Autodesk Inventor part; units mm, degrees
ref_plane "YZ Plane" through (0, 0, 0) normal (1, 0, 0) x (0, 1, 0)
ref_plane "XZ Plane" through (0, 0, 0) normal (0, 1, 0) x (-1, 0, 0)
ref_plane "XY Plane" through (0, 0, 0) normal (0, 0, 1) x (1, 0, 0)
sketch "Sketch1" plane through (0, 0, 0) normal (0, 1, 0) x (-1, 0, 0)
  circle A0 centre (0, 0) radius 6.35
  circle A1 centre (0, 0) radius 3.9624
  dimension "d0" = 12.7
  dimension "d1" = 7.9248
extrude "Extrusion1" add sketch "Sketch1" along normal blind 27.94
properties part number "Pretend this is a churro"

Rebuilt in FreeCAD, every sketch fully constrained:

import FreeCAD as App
import Part
import Sketcher
from FreeCAD import Vector
Q = App.Units.Quantity

doc = App.newDocument("Part")
body = doc.addObject("PartDesign::Body", "Body")

# Sketch on XZ plane
sketch1 = body.newObject("Sketcher::SketchObject", "Sketch")
sketch1.AttachmentSupport = (doc.getObject("XZ_Plane"), [""])
sketch1.MapMode = "FlatFace"
sketch1.addGeometry([
    Part.Circle(Vector(0, 0, 0), Vector(0, 0, 1), 6.3),
    Part.Circle(Vector(0, 0, 0), Vector(0, 0, 1), 4),
], False)
sketch1.addConstraint([
    Sketcher.Constraint("Coincident", 0, 3, -1, 1),
    Sketcher.Constraint("Coincident", 1, 3, -1, 1),
    Sketcher.Constraint("Diameter", 0, Q("0.5 in")),
    Sketcher.Constraint("Diameter", 1, Q("0.312 in")),
])
pad1 = body.newObject("PartDesign::Pad", "Pad")
pad1.Profile = sketch1
pad1.Length = Q("1.1 in")
pad1.Reversed = True

doc.recompute()
